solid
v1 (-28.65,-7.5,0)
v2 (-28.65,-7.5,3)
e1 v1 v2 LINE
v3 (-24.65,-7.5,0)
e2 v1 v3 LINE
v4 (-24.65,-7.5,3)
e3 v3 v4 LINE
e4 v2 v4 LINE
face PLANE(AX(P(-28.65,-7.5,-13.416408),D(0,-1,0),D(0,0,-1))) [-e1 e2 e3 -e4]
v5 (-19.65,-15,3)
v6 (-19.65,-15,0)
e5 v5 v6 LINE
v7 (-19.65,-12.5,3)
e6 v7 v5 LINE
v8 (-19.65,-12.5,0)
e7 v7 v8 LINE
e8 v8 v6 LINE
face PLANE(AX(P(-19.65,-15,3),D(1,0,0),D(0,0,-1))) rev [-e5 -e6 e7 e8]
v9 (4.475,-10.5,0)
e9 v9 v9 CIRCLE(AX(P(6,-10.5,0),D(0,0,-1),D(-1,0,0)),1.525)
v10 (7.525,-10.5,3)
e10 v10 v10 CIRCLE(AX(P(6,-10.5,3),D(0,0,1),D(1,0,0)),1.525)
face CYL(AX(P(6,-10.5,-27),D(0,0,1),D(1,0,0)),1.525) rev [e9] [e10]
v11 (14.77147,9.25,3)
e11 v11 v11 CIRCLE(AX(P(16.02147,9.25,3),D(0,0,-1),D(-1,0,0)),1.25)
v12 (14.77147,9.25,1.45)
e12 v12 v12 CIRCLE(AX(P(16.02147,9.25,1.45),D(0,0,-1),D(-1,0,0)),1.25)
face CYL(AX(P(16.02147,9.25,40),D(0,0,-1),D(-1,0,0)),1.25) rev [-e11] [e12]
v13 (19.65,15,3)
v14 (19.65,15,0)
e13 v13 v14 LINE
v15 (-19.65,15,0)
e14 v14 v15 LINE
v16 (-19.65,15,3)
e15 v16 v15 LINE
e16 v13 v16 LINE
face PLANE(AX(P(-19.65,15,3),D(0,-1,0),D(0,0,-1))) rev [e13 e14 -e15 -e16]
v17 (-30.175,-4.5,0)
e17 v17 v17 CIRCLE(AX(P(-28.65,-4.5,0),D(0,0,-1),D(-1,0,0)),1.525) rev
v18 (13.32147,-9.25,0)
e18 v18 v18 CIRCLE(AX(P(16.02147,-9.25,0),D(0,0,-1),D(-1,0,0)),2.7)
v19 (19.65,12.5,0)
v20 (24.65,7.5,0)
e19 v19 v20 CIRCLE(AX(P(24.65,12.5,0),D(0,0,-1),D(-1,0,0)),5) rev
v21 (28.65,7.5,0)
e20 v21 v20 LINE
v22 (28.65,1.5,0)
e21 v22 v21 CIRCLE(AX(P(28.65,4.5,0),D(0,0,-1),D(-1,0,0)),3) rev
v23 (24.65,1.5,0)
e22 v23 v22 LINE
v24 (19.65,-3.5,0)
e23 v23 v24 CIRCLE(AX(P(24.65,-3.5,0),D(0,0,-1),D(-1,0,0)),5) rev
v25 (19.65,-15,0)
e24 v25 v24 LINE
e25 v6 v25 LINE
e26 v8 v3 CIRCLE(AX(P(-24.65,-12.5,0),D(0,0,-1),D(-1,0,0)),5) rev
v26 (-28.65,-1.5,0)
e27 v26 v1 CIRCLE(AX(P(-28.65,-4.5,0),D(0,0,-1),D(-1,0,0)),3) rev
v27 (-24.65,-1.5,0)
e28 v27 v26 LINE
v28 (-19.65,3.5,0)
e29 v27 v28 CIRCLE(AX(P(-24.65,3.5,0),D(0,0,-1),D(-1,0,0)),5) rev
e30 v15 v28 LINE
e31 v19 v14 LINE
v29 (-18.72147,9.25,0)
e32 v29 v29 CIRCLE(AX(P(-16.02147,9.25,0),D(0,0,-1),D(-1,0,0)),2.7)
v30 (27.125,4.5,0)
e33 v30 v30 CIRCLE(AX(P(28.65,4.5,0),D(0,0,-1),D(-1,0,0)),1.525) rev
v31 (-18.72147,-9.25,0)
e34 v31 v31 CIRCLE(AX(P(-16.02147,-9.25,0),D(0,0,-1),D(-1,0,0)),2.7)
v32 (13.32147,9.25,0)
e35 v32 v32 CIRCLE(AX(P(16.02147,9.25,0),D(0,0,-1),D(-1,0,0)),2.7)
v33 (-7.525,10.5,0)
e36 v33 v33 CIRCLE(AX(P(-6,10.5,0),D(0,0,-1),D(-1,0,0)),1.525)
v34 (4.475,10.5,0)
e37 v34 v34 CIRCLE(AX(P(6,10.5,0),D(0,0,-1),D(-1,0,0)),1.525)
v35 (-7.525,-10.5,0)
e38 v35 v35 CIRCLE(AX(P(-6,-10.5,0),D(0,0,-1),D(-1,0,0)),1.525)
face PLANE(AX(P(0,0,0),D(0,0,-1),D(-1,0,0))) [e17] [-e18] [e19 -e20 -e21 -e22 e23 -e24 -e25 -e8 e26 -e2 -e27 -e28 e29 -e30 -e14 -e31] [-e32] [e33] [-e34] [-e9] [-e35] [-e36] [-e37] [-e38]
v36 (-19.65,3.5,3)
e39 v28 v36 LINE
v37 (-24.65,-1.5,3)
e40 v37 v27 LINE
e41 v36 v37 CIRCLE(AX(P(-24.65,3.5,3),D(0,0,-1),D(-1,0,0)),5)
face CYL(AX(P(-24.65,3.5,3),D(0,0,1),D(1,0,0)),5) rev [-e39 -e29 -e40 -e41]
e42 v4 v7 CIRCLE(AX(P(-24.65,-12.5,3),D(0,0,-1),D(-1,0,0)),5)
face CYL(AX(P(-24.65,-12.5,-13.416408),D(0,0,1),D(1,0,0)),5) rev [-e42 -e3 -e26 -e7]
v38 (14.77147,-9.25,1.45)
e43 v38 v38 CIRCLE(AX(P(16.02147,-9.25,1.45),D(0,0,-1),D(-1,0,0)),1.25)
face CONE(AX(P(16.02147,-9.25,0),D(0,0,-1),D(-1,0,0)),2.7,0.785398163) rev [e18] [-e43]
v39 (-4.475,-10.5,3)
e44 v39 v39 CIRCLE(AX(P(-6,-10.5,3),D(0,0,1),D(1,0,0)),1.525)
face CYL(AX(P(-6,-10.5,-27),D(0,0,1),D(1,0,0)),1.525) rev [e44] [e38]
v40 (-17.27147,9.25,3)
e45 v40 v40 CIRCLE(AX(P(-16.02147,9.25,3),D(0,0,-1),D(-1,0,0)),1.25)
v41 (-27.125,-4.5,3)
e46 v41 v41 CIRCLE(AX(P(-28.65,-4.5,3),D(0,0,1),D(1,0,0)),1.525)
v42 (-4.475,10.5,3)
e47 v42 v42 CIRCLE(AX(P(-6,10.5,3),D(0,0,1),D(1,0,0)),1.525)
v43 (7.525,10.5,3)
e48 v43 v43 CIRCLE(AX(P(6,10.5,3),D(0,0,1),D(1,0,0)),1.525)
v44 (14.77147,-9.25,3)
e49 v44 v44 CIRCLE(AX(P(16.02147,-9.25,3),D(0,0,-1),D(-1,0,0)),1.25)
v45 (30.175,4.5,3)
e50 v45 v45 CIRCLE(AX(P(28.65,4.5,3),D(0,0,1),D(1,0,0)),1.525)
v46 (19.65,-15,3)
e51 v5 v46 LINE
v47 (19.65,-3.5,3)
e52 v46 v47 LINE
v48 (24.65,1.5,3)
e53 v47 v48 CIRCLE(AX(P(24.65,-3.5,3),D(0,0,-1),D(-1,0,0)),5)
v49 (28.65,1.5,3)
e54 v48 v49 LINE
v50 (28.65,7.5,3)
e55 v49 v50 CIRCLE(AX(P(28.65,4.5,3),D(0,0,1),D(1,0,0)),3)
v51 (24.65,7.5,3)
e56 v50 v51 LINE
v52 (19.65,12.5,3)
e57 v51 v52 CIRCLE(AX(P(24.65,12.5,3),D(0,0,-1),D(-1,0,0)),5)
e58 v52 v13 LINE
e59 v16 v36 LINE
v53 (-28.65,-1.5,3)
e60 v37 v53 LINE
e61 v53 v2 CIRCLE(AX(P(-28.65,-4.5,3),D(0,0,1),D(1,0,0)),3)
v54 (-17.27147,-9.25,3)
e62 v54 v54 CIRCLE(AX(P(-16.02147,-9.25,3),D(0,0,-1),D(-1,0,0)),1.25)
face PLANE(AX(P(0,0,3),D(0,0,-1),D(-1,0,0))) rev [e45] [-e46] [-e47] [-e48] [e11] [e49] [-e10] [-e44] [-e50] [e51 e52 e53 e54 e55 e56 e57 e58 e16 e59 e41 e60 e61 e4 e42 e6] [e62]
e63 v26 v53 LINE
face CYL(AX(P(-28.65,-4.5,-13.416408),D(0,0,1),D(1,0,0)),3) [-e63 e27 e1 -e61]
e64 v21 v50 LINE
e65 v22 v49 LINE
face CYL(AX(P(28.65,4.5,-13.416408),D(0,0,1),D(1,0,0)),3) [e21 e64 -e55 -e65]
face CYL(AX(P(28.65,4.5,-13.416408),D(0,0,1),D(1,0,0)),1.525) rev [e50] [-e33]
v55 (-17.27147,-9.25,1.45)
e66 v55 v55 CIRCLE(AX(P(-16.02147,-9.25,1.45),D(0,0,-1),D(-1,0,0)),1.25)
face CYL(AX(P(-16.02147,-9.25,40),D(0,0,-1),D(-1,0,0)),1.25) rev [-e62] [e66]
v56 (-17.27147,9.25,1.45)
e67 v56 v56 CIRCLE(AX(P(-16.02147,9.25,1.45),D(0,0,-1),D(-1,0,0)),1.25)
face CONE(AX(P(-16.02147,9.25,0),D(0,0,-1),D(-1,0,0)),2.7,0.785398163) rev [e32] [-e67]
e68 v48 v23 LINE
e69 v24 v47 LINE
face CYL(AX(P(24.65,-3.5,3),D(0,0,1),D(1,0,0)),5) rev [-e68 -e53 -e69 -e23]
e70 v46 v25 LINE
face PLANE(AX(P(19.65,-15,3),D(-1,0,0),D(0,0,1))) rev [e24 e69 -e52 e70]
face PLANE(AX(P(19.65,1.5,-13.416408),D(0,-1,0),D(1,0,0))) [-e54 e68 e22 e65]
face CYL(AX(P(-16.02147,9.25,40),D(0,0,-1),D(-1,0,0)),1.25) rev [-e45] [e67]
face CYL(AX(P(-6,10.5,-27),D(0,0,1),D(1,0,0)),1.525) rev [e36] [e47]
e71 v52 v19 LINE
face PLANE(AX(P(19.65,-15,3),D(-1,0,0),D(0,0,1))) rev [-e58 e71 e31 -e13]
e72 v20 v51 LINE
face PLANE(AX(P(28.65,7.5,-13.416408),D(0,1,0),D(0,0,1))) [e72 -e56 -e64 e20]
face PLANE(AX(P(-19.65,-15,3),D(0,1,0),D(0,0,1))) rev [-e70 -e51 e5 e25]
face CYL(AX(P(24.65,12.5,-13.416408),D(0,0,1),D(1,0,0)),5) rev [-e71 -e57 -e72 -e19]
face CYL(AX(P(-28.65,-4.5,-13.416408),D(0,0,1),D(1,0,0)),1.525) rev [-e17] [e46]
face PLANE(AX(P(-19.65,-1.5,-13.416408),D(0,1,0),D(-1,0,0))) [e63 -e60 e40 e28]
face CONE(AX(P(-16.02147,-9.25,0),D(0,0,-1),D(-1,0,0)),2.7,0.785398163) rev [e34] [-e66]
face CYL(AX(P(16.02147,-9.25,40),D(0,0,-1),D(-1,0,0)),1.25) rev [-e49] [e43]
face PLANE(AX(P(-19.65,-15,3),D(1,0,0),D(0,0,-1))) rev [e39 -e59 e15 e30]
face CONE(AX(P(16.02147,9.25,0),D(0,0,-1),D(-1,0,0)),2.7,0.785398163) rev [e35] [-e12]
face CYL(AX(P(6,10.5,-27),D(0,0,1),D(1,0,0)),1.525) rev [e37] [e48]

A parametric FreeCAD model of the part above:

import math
import FreeCAD as App
import Part
import Sketcher

V = App.Vector


def edges_at(feature, points):
    """Names of the edges that pass closest to the given points."""
    edges = feature.Shape.Edges
    near = lambda p: min(range(len(edges)), key=lambda i: edges[i].distToShape(Part.Vertex(*p))[0])
    return sorted({f"Edge{near(p) + 1}" for p in points})

doc = App.newDocument("Part")
body = doc.addObject("PartDesign::Body", "Body")

sketch1 = body.newObject("Sketcher::SketchObject", "Sketch")
sketch1.AttachmentSupport = (doc.getObject("XY_Plane"), [""])
sketch1.MapMode = "FlatFace"
sketch1.addGeometry([
    Part.LineSegment(V(-19.65, 15, 0), V(-19.65, -15, 0)),
    Part.LineSegment(V(-19.65, -15, 0), V(19.65, -15, 0)),
    Part.LineSegment(V(19.65, -15, 0), V(19.65, 15, 0)),
    Part.LineSegment(V(19.65, 15, 0), V(-19.65, 15, 0)),
], False)
sketch1.addConstraint([
    Sketcher.Constraint("Coincident", 0, 2, 1, 1),
    Sketcher.Constraint("Coincident", 1, 2, 2, 1),
    Sketcher.Constraint("Coincident", 2, 2, 3, 1),
    Sketcher.Constraint("Coincident", 3, 2, 0, 1),
    Sketcher.Constraint("Vertical", 0),
    Sketcher.Constraint("Horizontal", 1),
    Sketcher.Constraint("Vertical", 2),
    Sketcher.Constraint("Horizontal", 3),
    Sketcher.Constraint("Symmetric", 0, 2, 2, 2, -1, 1),
    Sketcher.Constraint("DistanceY", 0, 2, 0, 1, 30.0),
    Sketcher.Constraint("DistanceX", 1, 1, 1, 2, 39.3),
])
pad1 = body.newObject("PartDesign::Pad", "Pad")
pad1.Profile = sketch1
pad1.Length = 3

sketch2 = body.newObject("Sketcher::SketchObject", "Sketch001")
sketch2.AttachmentSupport = (doc.getObject("XY_Plane"), [""])
sketch2.MapMode = "FlatFace"
sketch2.AttachmentOffset = App.Placement(V(0, 0, 3), App.Rotation())
sketch2.addGeometry([
    Part.LineSegment(V(-28.65, -7.5, 0), V(-19.65, -7.5, 0)),
    Part.LineSegment(V(-19.65, -7.5, 0), V(-19.65, -1.5, 0)),
    Part.LineSegment(V(-19.65, -1.5, 0), V(-28.65, -1.5, 0)),
    Part.ArcOfCircle(Part.Circle(V(-28.65, -4.5, 0), V(0, 0, 1), 3), math.radians(90), math.radians(270)),
    Part.Circle(V(-28.65, -4.5, 0), V(0, 0, 1), 1.525),
], False)
sketch2.addConstraint([
    Sketcher.Constraint("Coincident", 0, 2, 1, 1),
    Sketcher.Constraint("Coincident", 1, 2, 2, 1),
    Sketcher.Constraint("Tangent", 2, 2, 3, 1),
    Sketcher.Constraint("Tangent", 3, 2, 0, 1),
    Sketcher.Constraint("Horizontal", 0),
    Sketcher.Constraint("Vertical", 1),
    Sketcher.Constraint("Horizontal", 2),
    Sketcher.Constraint("Coincident", 4, 3, 3, 3),
    Sketcher.Constraint("Radius", 3, 3.0),
    Sketcher.Constraint("Diameter", 4, 3.05),
    Sketcher.Constraint("DistanceX", 0, 1, 0, 2, 9.0),
    Sketcher.Constraint("DistanceY", 3, 3, -1, 1, 4.5),
    Sketcher.Constraint("DistanceX", 3, 3, -1, 1, 28.65),
])
pad2 = body.newObject("PartDesign::Pad", "Pad001")
pad2.Profile = sketch2
pad2.Length = 3
pad2.Reversed = True

sketch3 = body.newObject("Sketcher::SketchObject", "Sketch002")
sketch3.AttachmentSupport = (doc.getObject("XY_Plane"), [""])
sketch3.MapMode = "FlatFace"
sketch3.AttachmentOffset = App.Placement(V(0, 0, 3), App.Rotation())
sketch3.addGeometry([
    Part.LineSegment(V(28.65, 7.5, 0), V(19.65, 7.5, 0)),
    Part.LineSegment(V(19.65, 7.5, 0), V(19.65, 1.5, 0)),
    Part.LineSegment(V(19.65, 1.5, 0), V(28.65, 1.5, 0)),
    Part.ArcOfCircle(Part.Circle(V(28.65, 4.5, 0), V(0, 0, 1), 3), math.radians(-90), math.radians(90)),
    Part.Circle(V(28.65, 4.5, 0), V(0, 0, 1), 1.525),
], False)
sketch3.addConstraint([
    Sketcher.Constraint("Coincident", 0, 2, 1, 1),
    Sketcher.Constraint("Coincident", 1, 2, 2, 1),
    Sketcher.Constraint("Tangent", 2, 2, 3, 1),
    Sketcher.Constraint("Tangent", 3, 2, 0, 1),
    Sketcher.Constraint("Horizontal", 0),
    Sketcher.Constraint("Vertical", 1),
    Sketcher.Constraint("Horizontal", 2),
    Sketcher.Constraint("Coincident", 4, 3, 3, 3),
    Sketcher.Constraint("Radius", 3, 3.0),
    Sketcher.Constraint("Diameter", 4, 3.05),
    Sketcher.Constraint("DistanceX", 0, 2, 0, 1, 9.0),
    Sketcher.Constraint("DistanceY", -1, 1, 3, 3, 4.5),
    Sketcher.Constraint("DistanceX", -1, 1, 3, 3, 28.65),
])
pad3 = body.newObject("PartDesign::Pad", "Pad002")
pad3.Profile = sketch3
pad3.Length = 3
pad3.Reversed = True
doc.recompute()

fillet = body.newObject("PartDesign::Fillet", "Fillet")
fillet.Base = (pad3, edges_at(pad3, [
    (-19.65, -1.5, 1.5),
    (-19.65, -7.5, 1.5),
    (19.65, 1.5, 1.5),
    (19.65, 7.5, 1.5),
]))
fillet.Radius = 5

sketch4 = body.newObject("Sketcher::SketchObject", "Sketch003")
sketch4.AttachmentSupport = (doc.getObject("XY_Plane"), [""])
sketch4.MapMode = "FlatFace"
sketch4.AttachmentOffset = App.Placement(V(0, 0, 3), App.Rotation())
sketch4.addGeometry([
    Part.Circle(V(6, 10.5, 0), V(0, 0, 1), 1.525),
    Part.Circle(V(-6, 10.5, 0), V(0, 0, 1), 1.525),
    Part.Circle(V(-6, -10.5, 0), V(0, 0, 1), 1.525),
    Part.Circle(V(6, -10.5, 0), V(0, 0, 1), 1.525),
], False)
sketch4.addConstraint([
    Sketcher.Constraint("Equal", 0, 1),
    Sketcher.Constraint("Equal", 1, 2),
    Sketcher.Constraint("Equal", 2, 3),
    Sketcher.Constraint("Symmetric", 0, 3, 2, 3, -1, 1),
    Sketcher.Constraint("Symmetric", 1, 3, 3, 3, -1, 1),
    Sketcher.Constraint("Symmetric", 0, 3, 1, 3, -2),
    Sketcher.Constraint("Diameter", 0, 3.05),
    Sketcher.Constraint("DistanceX", -1, 1, 0, 3, 6.0),
    Sketcher.Constraint("DistanceY", 2, 3, 1, 3, 21.0),
])
pocket1 = body.newObject("PartDesign::Pocket", "Pocket")
pocket1.Profile = sketch4
pocket1.Length = 30

sketch5 = body.newObject("Sketcher::SketchObject", "Sketch004")
sketch5.AttachmentSupport = (doc.getObject("XY_Plane"), [""])
sketch5.MapMode = "FlatFace"
sketch5.addGeometry([
    Part.Circle(V(-16.02147, 9.25, 0), V(0, 0, 1), 1.25),
    Part.Circle(V(16.02147, -9.25, 0), V(0, 0, 1), 1.25),
    Part.Circle(V(-16.02147, -9.25, 0), V(0, 0, 1), 1.25),
    Part.Circle(V(16.02147, 9.25, 0), V(0, 0, 1), 1.25),
], False)
sketch5.addConstraint([
    Sketcher.Constraint("Equal", 0, 1),
    Sketcher.Constraint("Equal", 1, 2),
    Sketcher.Constraint("Equal", 2, 3),
    Sketcher.Constraint("Symmetric", 0, 3, 1, 3, -1, 1),
    Sketcher.Constraint("Symmetric", 2, 3, 3, 3, -1, 1),
    Sketcher.Constraint("Symmetric", 1, 3, 2, 3, -2),
    Sketcher.Constraint("Diameter", 0, 2.5),
    Sketcher.Constraint("DistanceY", 1, 3, 0, 3, 18.5),
    Sketcher.Constraint("DistanceX", 0, 3, -1, 1, 16.02147),
])
pocket2 = body.newObject("PartDesign::Pocket", "Pocket001")
pocket2.Profile = sketch5
pocket2.Length = 40
pocket2.Reversed = True

sketch6 = body.newObject("Sketcher::SketchObject", "Sketch005")
sketch6.AttachmentSupport = (doc.getObject("XY_Plane"), [""])
sketch6.MapMode = "FlatFace"
sketch6.addGeometry([
    Part.Circle(V(16.02147, 9.25, 0), V(0, 0, 1), 1.25),
    Part.Circle(V(16.02147, -9.25, 0), V(0, 0, 1), 1.25),
    Part.Circle(V(-16.02147, 9.25, 0), V(0, 0, 1), 1.25),
    Part.Circle(V(-16.02147, -9.25, 0), V(0, 0, 1), 1.25),
], False)
sketch6.addConstraint([
    Sketcher.Constraint("Equal", 0, 1),
    Sketcher.Constraint("Equal", 1, 2),
    Sketcher.Constraint("Equal", 2, 3),
    Sketcher.Constraint("Symmetric", 1, 3, 2, 3, -1, 1),
    Sketcher.Constraint("Symmetric", 0, 3, 3, 3, -1, 1),
    Sketcher.Constraint("Symmetric", 0, 3, 2, 3, -2),
    Sketcher.Constraint("Diameter", 0, 2.5),
    Sketcher.Constraint("DistanceY", 1, 3, 0, 3, 18.5),
    Sketcher.Constraint("DistanceX", -1, 1, 0, 3, 16.02147),
])
doc.recompute()
hole = body.newObject("PartDesign::Hole", "Hole")
hole.Profile = sketch6
hole.ThreadType = "None"
hole.Diameter = 2.5
hole.DepthType = "ThroughAll"
hole.HoleCutType = "Countersink"
hole.HoleCutDiameter = 5.4
hole.HoleCutCountersinkAngle = 90
hole.Reversed = True

doc.recompute()
